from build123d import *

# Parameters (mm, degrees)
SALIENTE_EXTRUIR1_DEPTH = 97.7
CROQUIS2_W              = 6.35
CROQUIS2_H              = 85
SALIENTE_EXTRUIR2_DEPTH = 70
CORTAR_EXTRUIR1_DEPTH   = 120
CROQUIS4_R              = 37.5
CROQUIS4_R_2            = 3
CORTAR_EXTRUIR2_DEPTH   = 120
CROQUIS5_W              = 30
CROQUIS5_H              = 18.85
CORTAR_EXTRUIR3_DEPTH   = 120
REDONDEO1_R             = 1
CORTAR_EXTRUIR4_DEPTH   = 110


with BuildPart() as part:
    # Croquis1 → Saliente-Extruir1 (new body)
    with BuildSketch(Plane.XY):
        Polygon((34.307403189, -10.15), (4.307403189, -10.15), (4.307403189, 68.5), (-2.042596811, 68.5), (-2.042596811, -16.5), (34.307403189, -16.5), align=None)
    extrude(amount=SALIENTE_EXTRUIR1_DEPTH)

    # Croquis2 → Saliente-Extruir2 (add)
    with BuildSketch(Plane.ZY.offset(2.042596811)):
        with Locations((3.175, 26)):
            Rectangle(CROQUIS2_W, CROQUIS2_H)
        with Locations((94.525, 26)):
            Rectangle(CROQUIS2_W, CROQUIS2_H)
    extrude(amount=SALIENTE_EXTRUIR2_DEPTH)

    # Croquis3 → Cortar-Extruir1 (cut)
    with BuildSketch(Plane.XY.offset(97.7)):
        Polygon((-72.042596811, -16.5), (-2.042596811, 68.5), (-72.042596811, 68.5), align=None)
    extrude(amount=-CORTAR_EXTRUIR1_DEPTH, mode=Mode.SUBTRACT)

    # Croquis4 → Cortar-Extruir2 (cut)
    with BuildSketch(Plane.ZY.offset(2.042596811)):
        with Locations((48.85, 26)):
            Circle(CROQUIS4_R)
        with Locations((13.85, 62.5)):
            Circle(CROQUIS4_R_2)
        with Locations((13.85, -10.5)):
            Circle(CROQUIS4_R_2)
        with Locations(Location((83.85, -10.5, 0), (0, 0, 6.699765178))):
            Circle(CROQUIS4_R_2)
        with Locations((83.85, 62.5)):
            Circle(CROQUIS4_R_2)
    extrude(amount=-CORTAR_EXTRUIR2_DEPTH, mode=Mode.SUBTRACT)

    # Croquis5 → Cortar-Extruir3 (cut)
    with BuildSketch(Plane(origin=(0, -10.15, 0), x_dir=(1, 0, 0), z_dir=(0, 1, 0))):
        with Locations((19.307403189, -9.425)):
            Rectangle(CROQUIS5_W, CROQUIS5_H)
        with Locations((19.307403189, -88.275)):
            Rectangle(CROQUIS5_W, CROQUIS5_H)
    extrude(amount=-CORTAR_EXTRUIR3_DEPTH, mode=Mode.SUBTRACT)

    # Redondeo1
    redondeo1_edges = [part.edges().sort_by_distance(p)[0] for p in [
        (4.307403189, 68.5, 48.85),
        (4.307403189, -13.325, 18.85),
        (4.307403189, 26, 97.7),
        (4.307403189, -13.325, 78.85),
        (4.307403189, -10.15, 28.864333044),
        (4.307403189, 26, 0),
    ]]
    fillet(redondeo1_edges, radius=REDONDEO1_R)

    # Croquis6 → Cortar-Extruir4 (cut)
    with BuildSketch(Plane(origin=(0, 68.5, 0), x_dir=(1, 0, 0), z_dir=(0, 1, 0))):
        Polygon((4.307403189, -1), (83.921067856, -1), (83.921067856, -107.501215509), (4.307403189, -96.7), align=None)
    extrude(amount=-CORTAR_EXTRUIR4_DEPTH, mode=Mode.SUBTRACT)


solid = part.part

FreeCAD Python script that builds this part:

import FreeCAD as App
import Part
import Sketcher

V = App.Vector


def edges_at(feature, points):
    """Names of the edges that pass closest to the given points."""
    edges = feature.Shape.Edges
    near = lambda p: min(range(len(edges)), key=lambda i: edges[i].distToShape(Part.Vertex(*p))[0])
    return sorted({f"Edge{near(p) + 1}" for p in points})

doc = App.newDocument("Part")
body = doc.addObject("PartDesign::Body", "Body")

# Sketch on XY plane
sketch1 = doc.addObject("Sketcher::SketchObject", "Sketch")
body.addObject(sketch1)
sketch1.AttachmentSupport = (doc.XY_Plane, [""])
sketch1.MapMode = "FlatFace"
sketch1.addGeometry([
    Part.LineSegment(V(34, -10, 0), V(4, -10, 0)),  # 0
    Part.LineSegment(V(4, -10, 0), V(4, 68, 0)),  # 1
    Part.LineSegment(V(4, 68, 0), V(-2, 68, 0)),  # 2
    Part.LineSegment(V(-2, 68, 0), V(-2, -16, 0)),  # 3
    Part.LineSegment(V(-2, -16, 0), V(34, -16, 0)),  # 4
    Part.LineSegment(V(34, -16, 0), V(34, -10, 0)),  # 5
], False)
sketch1.addConstraint([
    Sketcher.Constraint("Coincident", 0, 2, 1, 1),
    Sketcher.Constraint("Coincident", 1, 2, 2, 1),
    Sketcher.Constraint("Coincident", 2, 2, 3, 1),
    Sketcher.Constraint("Coincident", 3, 2, 4, 1),
    Sketcher.Constraint("Coincident", 4, 2, 5, 1),
    Sketcher.Constraint("Coincident", 5, 2, 0, 1),
    Sketcher.Constraint("Horizontal", 0),
    Sketcher.Constraint("Vertical", 1),
    Sketcher.Constraint("Horizontal", 2),
    Sketcher.Constraint("Vertical", 3),
    Sketcher.Constraint("Horizontal", 4),
    Sketcher.Constraint("Vertical", 5),
    Sketcher.Constraint("Equal", 2, 5),
    Sketcher.Constraint("DistanceX", 0, 2, 0, 1, 30.0),
    Sketcher.Constraint("DistanceY", 3, 2, 3, 1, 85.0),
    Sketcher.Constraint("DistanceX", 2, 2, 2, 1, 6.35),
    Sketcher.Constraint("DistanceY", -1, 1, 1, 2, 68.5),
    Sketcher.Constraint("DistanceX", -1, 1, 0, 2, 4.307403),
])
pad1 = doc.addObject("PartDesign::Pad", "Pad")
body.addObject(pad1)
pad1.Profile = sketch1
pad1.Length = 97.7

# Sketch on YZ plane
sketch2 = doc.addObject("Sketcher::SketchObject", "Sketch001")
body.addObject(sketch2)
sketch2.AttachmentSupport = (doc.YZ_Plane, [""])
sketch2.MapMode = "FlatFace"
sketch2.AttachmentOffset = App.Placement(V(0, 0, -2.042597), App.Rotation())
sketch2.addGeometry([
    Part.LineSegment(V(68, 0, 0), V(-16, 0, 0)),  # 0
    Part.LineSegment(V(-16, 0, 0), V(-16, 6, 0)),  # 1
    Part.LineSegment(V(-16, 6, 0), V(68, 6, 0)),  # 2
    Part.LineSegment(V(68, 6, 0), V(68, 0, 0)),  # 3
    Part.LineSegment(V(68, 91, 0), V(-16, 91, 0)),  # 4
    Part.LineSegment(V(-16, 91, 0), V(-16, 98, 0)),  # 5
    Part.LineSegment(V(-16, 98, 0), V(68, 98, 0)),  # 6
    Part.LineSegment(V(68, 98, 0), V(68, 91, 0)),  # 7
], False)
sketch2.addConstraint([
    Sketcher.Constraint("Coincident", 0, 2, 1, 1),
    Sketcher.Constraint("Coincident", 1, 2, 2, 1),
    Sketcher.Constraint("Coincident", 2, 2, 3, 1),
    Sketcher.Constraint("Coincident", 3, 2, 0, 1),
    Sketcher.Constraint("Coincident", 4, 2, 5, 1),
    Sketcher.Constraint("Coincident", 5, 2, 6, 1),
    Sketcher.Constraint("Coincident", 6, 2, 7, 1),
    Sketcher.Constraint("Coincident", 7, 2, 4, 1),
    Sketcher.Constraint("Horizontal", 0),
    Sketcher.Constraint("Vertical", 1),
    Sketcher.Constraint("Horizontal", 2),
    Sketcher.Constraint("Vertical", 3),
    Sketcher.Constraint("Horizontal", 4),
    Sketcher.Constraint("Vertical", 5),
    Sketcher.Constraint("Horizontal", 6),
    Sketcher.Constraint("Vertical", 7),
    Sketcher.Constraint("PointOnObject", 0, 2, -1),
    Sketcher.Constraint("Vertical", 1, 2, 4, 2),
    Sketcher.Constraint("Vertical", 3, 2, 6, 2),
    Sketcher.Constraint("Equal", 3, 5),
    Sketcher.Constraint("DistanceX", 0, 2, 0, 1, 85.0),
    Sketcher.Constraint("DistanceY", 1, 2, 4, 2, 85.0),
    Sketcher.Constraint("DistanceY", 1, 1, 1, 2, 6.35),
    Sketcher.Constraint("DistanceX", 0, 2, -1, 1, 16.5),
])
pad2 = doc.addObject("PartDesign::Pad", "Pad001")
body.addObject(pad2)
pad2.Profile = sketch2
pad2.Length = 70
pad2.Reversed = True

# Sketch on XY plane
sketch3 = doc.addObject("Sketcher::SketchObject", "Sketch002")
body.addObject(sketch3)
sketch3.AttachmentSupport = (doc.XY_Plane, [""])
sketch3.MapMode = "FlatFace"
sketch3.AttachmentOffset = App.Placement(V(0, 0, 97.7), App.Rotation())
sketch3.addGeometry([
    Part.LineSegment(V(-72, -16, 0), V(-2, 68, 0)),
    Part.LineSegment(V(-2, 68, 0), V(-72, 68, 0)),
    Part.LineSegment(V(-72, 68, 0), V(-72, -16, 0)),
], False)
sketch3.addConstraint([
    Sketcher.Constraint("Coincident", 0, 2, 1, 1),
    Sketcher.Constraint("Coincident", 1, 2, 2, 1),
    Sketcher.Constraint("Coincident", 2, 2, 0, 1),
    Sketcher.Constraint("Horizontal", 1),
    Sketcher.Constraint("Vertical", 2),
    Sketcher.Constraint("DistanceX", 1, 2, 1, 1, 70.0),
    Sketcher.Constraint("DistanceY", 2, 2, 2, 1, 85.0),
    Sketcher.Constraint("DistanceY", -1, 1, 0, 2, 68.5),
    Sketcher.Constraint("DistanceX", 0, 2, -1, 1, 2.042597),
])
pocket1 = doc.addObject("PartDesign::Pocket", "Pocket")
body.addObject(pocket1)
pocket1.Profile = sketch3
pocket1.Length = 120

# Sketch on YZ plane
sketch4 = doc.addObject("Sketcher::SketchObject", "Sketch003")
body.addObject(sketch4)
sketch4.AttachmentSupport = (doc.YZ_Plane, [""])
sketch4.MapMode = "FlatFace"
sketch4.AttachmentOffset = App.Placement(V(0, 0, -2.042597), App.Rotation())
sketch4.addGeometry([
    Part.Circle(V(26, 48.9, 0), V(0, 0, 1), 37.5),  # 0
    Part.Circle(V(62.5, 13.8, 0), V(0, 0, 1), 3),  # 1
    Part.Circle(V(-10.5, 13.8, 0), V(0, 0, 1), 3),  # 2
    Part.Circle(V(-10.5, 83.8, 0), V(0, 0, 1), 3),  # 3
    Part.Circle(V(62.5, 83.8, 0), V(0, 0, 1), 3),  # 4
], False)
sketch4.addConstraint([
    Sketcher.Constraint("Equal", 1, 2),
    Sketcher.Constraint("Equal", 2, 3),
    Sketcher.Constraint("Equal", 3, 4),
    Sketcher.Constraint("Horizontal", 1, 3, 2, 3),
    Sketcher.Constraint("Horizontal", 3, 3, 4, 3),
    Sketcher.Constraint("Vertical", 2, 3, 3, 3),
    Sketcher.Constraint("Vertical", 1, 3, 4, 3),
    Sketcher.Constraint("Diameter", 0, 75.0),
    Sketcher.Constraint("Diameter", 1, 6.0),
    Sketcher.Constraint("DistanceX", -1, 1, 0, 3, 26.0),
    Sketcher.Constraint("DistanceY", 1, 3, 0, 3, 35.0),
    Sketcher.Constraint("DistanceX", 2, 3, 1, 3, 73.0),
    Sketcher.Constraint("DistanceY", 0, 3, 3, 3, 35.0),
    Sketcher.Constraint("DistanceX", -1, 1, 1, 3, 62.5),
    Sketcher.Constraint("DistanceY", -1, 1, 0, 3, 48.85),
])
pocket2 = doc.addObject("PartDesign::Pocket", "Pocket001")
body.addObject(pocket2)
pocket2.Profile = sketch4
pocket2.Length = 120
pocket2.Reversed = True

# Sketch on XZ plane
sketch5 = doc.addObject("Sketcher::SketchObject", "Sketch004")
body.addObject(sketch5)
sketch5.AttachmentSupport = (doc.XZ_Plane, [""])
sketch5.MapMode = "FlatFace"
sketch5.AttachmentOffset = App.Placement(V(0, 0, 10.15), App.Rotation())
sketch5.addGeometry([
    Part.LineSegment(V(4, 0, 0), V(4, 19, 0)),  # 0
    Part.LineSegment(V(4, 19, 0), V(34, 19, 0)),  # 1
    Part.LineSegment(V(34, 19, 0), V(34, 0, 0)),  # 2
    Part.LineSegment(V(34, 0, 0), V(4, 0, 0)),  # 3
    Part.LineSegment(V(4, 79, 0), V(4, 98, 0)),  # 4
    Part.LineSegment(V(4, 98, 0), V(34, 98, 0)),  # 5
    Part.LineSegment(V(34, 98, 0), V(34, 79, 0)),  # 6
    Part.LineSegment(V(34, 79, 0), V(4, 79, 0)),  # 7
], False)
sketch5.addConstraint([
    Sketcher.Constraint("Coincident", 0, 2, 1, 1),
    Sketcher.Constraint("Coincident", 1, 2, 2, 1),
    Sketcher.Constraint("Coincident", 2, 2, 3, 1),
    Sketcher.Constraint("Coincident", 3, 2, 0, 1),
    Sketcher.Constraint("Coincident", 4, 2, 5, 1),
    Sketcher.Constraint("Coincident", 5, 2, 6, 1),
    Sketcher.Constraint("Coincident", 6, 2, 7, 1),
    Sketcher.Constraint("Coincident", 7, 2, 4, 1),
    Sketcher.Constraint("Vertical", 0),
    Sketcher.Constraint("Horizontal", 1),
    Sketcher.Constraint("Vertical", 2),
    Sketcher.Constraint("Horizontal", 3),
    Sketcher.Constraint("Vertical", 4),
    Sketcher.Constraint("Horizontal", 5),
    Sketcher.Constraint("Vertical", 6),
    Sketcher.Constraint("Horizontal", 7),
    Sketcher.Constraint("PointOnObject", 2, 2, -1),
    Sketcher.Constraint("Vertical", 3, 2, 4, 2),
    Sketcher.Constraint("Vertical", 2, 2, 5, 2),
    Sketcher.Constraint("Equal", 2, 4),
    Sketcher.Constraint("DistanceX", 1, 1, 1, 2, 30.0),
    Sketcher.Constraint("DistanceY", 1, 2, 6, 2, 60.0),
    Sketcher.Constraint("DistanceY", 0, 1, 0, 2, 18.85),
    Sketcher.Constraint("DistanceX", -1, 1, 0, 2, 4.307403),
])
pocket3 = doc.addObject("PartDesign::Pocket", "Pocket002")
body.addObject(pocket3)
pocket3.Profile = sketch5
pocket3.Length = 120
pocket3.Reversed = True
doc.recompute()

fillet = doc.addObject("PartDesign::Fillet", "Fillet")
body.addObject(fillet)
fillet.Base = (pocket3, edges_at(pocket3, [
    (4.307, 68.5, 48.85),
    (4.307, -13.325, 18.85),
    (4.307, 26, 97.7),
    (4.307, -13.325, 78.85),
    (4.307, -10.15, 28.864),
    (4.307, 26, 0),
]))
fillet.Radius = 1

# Sketch on XZ plane
sketch6 = doc.addObject("Sketcher::SketchObject", "Sketch005")
body.addObject(sketch6)
sketch6.AttachmentSupport = (doc.XZ_Plane, [""])
sketch6.MapMode = "FlatFace"
sketch6.AttachmentOffset = App.Placement(V(0, 0, -68.5), App.Rotation())
sketch6.addGeometry([
    Part.LineSegment(V(84, 1, 0), V(4, 1, 0)),
    Part.LineSegment(V(4, 1, 0), V(4, 97, 0)),
    Part.LineSegment(V(4, 97, 0), V(84, 108, 0)),
    Part.LineSegment(V(84, 108, 0), V(84, 1, 0)),
], False)
sketch6.addConstraint([
    Sketcher.Constraint("Coincident", 0, 2, 1, 1),
    Sketcher.Constraint("Coincident", 1, 2, 2, 1),
    Sketcher.Constraint("Coincident", 2, 2, 3, 1),
    Sketcher.Constraint("Coincident", 3, 2, 0, 1),
    Sketcher.Constraint("Horizontal", 0),
    Sketcher.Constraint("Vertical", 1),
    Sketcher.Constraint("Vertical", 3),
    Sketcher.Constraint("DistanceY", 1, 1, 1, 2, 95.7),
    Sketcher.Constraint("DistanceY", -1, 1, 0, 2, 1.0),
    Sketcher.Constraint("DistanceX", 0, 2, 0, 1, 79.613665),
    Sketcher.Constraint("DistanceY", 3, 2, 3, 1, 106.501216),
    Sketcher.Constraint("DistanceX", -1, 1, 0, 2, 4.307403),
])
pocket4 = doc.addObject("PartDesign::Pocket", "Pocket003")
body.addObject(pocket4)
pocket4.Profile = sketch6
pocket4.Length = 110
pocket4.Reversed = True

doc.recompute()
